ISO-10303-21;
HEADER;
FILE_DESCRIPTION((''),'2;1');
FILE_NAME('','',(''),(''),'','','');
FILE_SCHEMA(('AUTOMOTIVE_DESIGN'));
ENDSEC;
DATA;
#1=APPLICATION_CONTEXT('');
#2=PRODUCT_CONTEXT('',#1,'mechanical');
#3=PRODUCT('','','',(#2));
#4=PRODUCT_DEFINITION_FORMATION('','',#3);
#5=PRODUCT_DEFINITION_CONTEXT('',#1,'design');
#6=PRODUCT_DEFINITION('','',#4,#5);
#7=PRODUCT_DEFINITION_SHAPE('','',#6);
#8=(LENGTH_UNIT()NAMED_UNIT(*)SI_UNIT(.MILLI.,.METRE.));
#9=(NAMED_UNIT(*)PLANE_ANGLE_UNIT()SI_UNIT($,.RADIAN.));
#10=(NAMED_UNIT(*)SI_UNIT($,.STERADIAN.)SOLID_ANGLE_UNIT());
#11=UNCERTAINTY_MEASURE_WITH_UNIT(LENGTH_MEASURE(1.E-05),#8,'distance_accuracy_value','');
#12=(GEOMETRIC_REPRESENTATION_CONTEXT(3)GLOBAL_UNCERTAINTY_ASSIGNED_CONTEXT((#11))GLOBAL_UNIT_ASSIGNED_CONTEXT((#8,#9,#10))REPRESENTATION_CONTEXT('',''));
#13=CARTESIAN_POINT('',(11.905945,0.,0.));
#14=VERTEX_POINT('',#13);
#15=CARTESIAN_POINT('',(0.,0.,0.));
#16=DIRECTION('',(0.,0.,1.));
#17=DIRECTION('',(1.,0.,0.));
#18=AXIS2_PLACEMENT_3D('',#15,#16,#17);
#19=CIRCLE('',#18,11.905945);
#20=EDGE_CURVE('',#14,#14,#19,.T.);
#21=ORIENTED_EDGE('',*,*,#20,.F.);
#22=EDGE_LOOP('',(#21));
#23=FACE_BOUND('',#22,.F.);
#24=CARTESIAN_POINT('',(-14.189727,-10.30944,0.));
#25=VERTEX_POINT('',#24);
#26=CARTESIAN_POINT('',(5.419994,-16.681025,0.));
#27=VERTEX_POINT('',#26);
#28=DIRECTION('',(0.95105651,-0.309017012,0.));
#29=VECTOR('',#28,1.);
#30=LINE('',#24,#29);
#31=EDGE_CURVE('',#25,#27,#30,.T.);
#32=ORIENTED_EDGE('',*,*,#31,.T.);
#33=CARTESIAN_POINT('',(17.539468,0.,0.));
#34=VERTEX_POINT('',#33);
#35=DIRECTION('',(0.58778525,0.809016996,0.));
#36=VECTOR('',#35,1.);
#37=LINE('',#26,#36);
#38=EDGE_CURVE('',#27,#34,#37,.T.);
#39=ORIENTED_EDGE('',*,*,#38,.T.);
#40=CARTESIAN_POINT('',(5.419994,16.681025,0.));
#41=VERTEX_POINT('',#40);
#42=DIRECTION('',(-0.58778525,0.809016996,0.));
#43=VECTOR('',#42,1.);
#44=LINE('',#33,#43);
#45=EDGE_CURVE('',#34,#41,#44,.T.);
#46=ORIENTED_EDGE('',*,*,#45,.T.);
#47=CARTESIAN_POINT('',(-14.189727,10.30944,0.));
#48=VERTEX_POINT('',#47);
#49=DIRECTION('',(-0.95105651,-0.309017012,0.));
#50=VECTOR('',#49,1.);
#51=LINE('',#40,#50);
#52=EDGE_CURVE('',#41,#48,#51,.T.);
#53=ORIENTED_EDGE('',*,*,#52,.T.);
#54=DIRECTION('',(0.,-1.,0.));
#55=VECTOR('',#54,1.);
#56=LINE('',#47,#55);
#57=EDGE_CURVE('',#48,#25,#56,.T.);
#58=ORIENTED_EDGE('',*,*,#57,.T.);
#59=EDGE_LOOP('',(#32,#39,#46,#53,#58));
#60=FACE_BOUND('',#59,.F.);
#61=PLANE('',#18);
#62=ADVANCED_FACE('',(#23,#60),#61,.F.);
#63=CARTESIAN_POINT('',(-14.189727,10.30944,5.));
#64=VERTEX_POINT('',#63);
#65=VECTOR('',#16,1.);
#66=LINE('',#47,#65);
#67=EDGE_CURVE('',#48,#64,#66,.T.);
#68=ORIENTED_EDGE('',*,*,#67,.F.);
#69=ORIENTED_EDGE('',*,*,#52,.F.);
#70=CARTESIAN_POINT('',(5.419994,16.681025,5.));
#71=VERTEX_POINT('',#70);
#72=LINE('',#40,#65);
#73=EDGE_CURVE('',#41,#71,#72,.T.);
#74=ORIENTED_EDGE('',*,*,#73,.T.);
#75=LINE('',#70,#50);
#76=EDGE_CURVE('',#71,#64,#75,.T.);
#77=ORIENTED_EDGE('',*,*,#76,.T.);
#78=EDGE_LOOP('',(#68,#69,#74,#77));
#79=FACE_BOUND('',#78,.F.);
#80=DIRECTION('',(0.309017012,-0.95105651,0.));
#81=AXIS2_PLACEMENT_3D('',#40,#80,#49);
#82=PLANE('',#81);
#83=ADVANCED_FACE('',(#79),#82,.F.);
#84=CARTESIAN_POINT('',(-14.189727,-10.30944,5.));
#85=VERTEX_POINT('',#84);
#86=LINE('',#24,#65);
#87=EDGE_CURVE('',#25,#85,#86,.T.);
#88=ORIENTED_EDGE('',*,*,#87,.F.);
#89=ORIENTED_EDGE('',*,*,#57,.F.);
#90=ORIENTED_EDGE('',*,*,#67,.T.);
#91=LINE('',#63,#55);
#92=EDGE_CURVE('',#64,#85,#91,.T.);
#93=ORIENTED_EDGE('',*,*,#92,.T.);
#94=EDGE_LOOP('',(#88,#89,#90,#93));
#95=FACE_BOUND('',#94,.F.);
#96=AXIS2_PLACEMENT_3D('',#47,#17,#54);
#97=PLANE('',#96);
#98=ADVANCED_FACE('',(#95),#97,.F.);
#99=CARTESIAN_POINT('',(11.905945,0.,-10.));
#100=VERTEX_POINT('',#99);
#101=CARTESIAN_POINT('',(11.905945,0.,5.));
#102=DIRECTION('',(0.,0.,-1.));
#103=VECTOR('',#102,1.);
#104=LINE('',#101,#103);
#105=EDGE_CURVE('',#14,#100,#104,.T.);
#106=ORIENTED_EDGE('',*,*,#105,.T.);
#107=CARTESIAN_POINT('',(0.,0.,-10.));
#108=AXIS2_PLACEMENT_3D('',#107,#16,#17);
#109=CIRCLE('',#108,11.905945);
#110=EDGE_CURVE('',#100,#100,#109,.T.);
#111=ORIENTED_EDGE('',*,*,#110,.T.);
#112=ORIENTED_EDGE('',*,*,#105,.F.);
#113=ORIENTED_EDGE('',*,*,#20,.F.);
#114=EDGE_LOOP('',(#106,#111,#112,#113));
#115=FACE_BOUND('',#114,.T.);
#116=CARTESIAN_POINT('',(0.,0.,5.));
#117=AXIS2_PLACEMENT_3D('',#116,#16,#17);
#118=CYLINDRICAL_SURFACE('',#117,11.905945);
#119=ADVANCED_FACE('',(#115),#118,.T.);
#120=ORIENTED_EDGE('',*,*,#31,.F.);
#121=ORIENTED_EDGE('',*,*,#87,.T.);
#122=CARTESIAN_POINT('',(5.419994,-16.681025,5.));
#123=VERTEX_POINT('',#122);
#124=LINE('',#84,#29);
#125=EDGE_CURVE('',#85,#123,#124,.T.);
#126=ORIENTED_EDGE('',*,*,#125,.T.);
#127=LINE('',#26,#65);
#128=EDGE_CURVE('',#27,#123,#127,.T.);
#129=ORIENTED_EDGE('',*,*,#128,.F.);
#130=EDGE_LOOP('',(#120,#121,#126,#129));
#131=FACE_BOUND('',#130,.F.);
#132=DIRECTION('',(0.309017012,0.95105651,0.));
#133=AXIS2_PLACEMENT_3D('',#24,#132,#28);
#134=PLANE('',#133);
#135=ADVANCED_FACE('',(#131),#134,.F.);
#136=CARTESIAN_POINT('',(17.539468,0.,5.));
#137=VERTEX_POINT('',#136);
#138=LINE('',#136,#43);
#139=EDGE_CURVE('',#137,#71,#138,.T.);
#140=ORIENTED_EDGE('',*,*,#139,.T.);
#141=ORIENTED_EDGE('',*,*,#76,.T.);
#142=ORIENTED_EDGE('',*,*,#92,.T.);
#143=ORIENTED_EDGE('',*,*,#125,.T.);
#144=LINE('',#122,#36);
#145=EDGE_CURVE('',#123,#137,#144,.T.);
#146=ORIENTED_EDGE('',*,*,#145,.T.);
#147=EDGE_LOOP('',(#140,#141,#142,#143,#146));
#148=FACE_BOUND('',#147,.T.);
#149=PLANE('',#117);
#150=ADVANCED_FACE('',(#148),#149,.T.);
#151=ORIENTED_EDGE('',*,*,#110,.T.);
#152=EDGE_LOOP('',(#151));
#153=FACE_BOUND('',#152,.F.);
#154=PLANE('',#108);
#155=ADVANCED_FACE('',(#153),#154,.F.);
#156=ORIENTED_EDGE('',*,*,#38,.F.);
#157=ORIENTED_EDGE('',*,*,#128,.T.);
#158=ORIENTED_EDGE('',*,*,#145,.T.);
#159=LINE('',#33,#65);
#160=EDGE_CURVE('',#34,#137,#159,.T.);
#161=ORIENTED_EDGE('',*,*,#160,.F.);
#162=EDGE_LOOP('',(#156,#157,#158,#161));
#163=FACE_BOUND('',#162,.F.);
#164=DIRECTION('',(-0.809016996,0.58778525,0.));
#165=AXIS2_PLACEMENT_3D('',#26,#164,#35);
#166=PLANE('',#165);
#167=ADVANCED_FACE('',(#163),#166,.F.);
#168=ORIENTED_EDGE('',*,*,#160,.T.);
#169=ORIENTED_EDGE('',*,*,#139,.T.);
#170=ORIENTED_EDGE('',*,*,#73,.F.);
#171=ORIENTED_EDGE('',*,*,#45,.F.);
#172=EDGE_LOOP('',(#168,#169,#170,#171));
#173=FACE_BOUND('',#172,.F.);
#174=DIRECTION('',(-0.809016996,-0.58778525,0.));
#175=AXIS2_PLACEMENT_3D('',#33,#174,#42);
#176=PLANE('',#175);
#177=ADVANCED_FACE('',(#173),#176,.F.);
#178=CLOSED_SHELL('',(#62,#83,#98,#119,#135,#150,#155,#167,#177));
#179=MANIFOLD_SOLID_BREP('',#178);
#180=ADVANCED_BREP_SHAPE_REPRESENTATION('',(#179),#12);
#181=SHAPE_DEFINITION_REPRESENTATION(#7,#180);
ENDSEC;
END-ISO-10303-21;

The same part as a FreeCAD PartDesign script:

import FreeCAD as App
import Part
import Sketcher
Q = App.Units.Quantity


def add_polygon(sketch, points):
    """Adds a closed chain of lines whose ends are joined by coincident constraints."""
    first, n = sketch.GeometryCount, len(points)
    for a, b in zip(points, points[1:] + points[:1]):
        sketch.addGeometry(Part.LineSegment(App.Vector(*a, 0), App.Vector(*b, 0)), False)
    for i in range(n):
        sketch.addConstraint(Sketcher.Constraint("Coincident", first + i, 2, first + (i + 1) % n, 1))

doc = App.newDocument("Part")
body = doc.addObject("PartDesign::Body", "Body")

# Sketch on XY plane
sketch1 = body.newObject("Sketcher::SketchObject", "Sketch")
sketch1.AttachmentSupport = (doc.getObject("XY_Plane"), [""])
sketch1.MapMode = "FlatFace"
add_polygon(sketch1, [(18, 0), (5, 17), (-14, 10), (-14, -10), (5, -17)])  # lines 0-4
sketch1.addConstraint(Sketcher.Constraint("Vertical", 2))
sketch1.addConstraint(Sketcher.Constraint("Symmetric", 0, 2, 3, 2, -1))
sketch1.addConstraint(Sketcher.Constraint("PointOnObject", 4, 2, -1))
sketch1.addConstraint(Sketcher.Constraint("Equal", 0, 1))
sketch1.addConstraint(Sketcher.Constraint("Equal", 1, 3))
sketch1.addConstraint(Sketcher.Constraint("Angle", 0, Q("126 deg")))
sketch1.addConstraint(Sketcher.Constraint("Angle", 1, Q("-161.999999 deg")))
sketch1.addConstraint(Sketcher.Constraint("DistanceY", 2, 2, 2, 1, Q("20.61888 mm")))
sketch1.addConstraint(Sketcher.Constraint("DistanceX", -1, 1, 0, 2, Q("5.419994 mm")))
pad1 = body.newObject("PartDesign::Pad", "Pad")
pad1.Profile = sketch1
pad1.Length = 5

# Sketch on XY plane
sketch2 = body.newObject("Sketcher::SketchObject", "Sketch001")
sketch2.AttachmentSupport = (doc.getObject("XY_Plane"), [""])
sketch2.MapMode = "FlatFace"
sketch2.AttachmentOffset = App.Placement(App.Vector(0, 0, 5), App.Rotation())
sketch2.addGeometry(Part.Circle(App.Vector(0, 0, 0), App.Vector(0, 0, 1), 12), False)
sketch2.addConstraint(Sketcher.Constraint("Coincident", 0, 3, -1, 1))
sketch2.addConstraint(Sketcher.Constraint("Diameter", 0, Q("23.81189 mm")))
pad2 = body.newObject("PartDesign::Pad", "Pad001")
pad2.Profile = sketch2
pad2.Length = 15
pad2.Reversed = True

doc.recompute()
